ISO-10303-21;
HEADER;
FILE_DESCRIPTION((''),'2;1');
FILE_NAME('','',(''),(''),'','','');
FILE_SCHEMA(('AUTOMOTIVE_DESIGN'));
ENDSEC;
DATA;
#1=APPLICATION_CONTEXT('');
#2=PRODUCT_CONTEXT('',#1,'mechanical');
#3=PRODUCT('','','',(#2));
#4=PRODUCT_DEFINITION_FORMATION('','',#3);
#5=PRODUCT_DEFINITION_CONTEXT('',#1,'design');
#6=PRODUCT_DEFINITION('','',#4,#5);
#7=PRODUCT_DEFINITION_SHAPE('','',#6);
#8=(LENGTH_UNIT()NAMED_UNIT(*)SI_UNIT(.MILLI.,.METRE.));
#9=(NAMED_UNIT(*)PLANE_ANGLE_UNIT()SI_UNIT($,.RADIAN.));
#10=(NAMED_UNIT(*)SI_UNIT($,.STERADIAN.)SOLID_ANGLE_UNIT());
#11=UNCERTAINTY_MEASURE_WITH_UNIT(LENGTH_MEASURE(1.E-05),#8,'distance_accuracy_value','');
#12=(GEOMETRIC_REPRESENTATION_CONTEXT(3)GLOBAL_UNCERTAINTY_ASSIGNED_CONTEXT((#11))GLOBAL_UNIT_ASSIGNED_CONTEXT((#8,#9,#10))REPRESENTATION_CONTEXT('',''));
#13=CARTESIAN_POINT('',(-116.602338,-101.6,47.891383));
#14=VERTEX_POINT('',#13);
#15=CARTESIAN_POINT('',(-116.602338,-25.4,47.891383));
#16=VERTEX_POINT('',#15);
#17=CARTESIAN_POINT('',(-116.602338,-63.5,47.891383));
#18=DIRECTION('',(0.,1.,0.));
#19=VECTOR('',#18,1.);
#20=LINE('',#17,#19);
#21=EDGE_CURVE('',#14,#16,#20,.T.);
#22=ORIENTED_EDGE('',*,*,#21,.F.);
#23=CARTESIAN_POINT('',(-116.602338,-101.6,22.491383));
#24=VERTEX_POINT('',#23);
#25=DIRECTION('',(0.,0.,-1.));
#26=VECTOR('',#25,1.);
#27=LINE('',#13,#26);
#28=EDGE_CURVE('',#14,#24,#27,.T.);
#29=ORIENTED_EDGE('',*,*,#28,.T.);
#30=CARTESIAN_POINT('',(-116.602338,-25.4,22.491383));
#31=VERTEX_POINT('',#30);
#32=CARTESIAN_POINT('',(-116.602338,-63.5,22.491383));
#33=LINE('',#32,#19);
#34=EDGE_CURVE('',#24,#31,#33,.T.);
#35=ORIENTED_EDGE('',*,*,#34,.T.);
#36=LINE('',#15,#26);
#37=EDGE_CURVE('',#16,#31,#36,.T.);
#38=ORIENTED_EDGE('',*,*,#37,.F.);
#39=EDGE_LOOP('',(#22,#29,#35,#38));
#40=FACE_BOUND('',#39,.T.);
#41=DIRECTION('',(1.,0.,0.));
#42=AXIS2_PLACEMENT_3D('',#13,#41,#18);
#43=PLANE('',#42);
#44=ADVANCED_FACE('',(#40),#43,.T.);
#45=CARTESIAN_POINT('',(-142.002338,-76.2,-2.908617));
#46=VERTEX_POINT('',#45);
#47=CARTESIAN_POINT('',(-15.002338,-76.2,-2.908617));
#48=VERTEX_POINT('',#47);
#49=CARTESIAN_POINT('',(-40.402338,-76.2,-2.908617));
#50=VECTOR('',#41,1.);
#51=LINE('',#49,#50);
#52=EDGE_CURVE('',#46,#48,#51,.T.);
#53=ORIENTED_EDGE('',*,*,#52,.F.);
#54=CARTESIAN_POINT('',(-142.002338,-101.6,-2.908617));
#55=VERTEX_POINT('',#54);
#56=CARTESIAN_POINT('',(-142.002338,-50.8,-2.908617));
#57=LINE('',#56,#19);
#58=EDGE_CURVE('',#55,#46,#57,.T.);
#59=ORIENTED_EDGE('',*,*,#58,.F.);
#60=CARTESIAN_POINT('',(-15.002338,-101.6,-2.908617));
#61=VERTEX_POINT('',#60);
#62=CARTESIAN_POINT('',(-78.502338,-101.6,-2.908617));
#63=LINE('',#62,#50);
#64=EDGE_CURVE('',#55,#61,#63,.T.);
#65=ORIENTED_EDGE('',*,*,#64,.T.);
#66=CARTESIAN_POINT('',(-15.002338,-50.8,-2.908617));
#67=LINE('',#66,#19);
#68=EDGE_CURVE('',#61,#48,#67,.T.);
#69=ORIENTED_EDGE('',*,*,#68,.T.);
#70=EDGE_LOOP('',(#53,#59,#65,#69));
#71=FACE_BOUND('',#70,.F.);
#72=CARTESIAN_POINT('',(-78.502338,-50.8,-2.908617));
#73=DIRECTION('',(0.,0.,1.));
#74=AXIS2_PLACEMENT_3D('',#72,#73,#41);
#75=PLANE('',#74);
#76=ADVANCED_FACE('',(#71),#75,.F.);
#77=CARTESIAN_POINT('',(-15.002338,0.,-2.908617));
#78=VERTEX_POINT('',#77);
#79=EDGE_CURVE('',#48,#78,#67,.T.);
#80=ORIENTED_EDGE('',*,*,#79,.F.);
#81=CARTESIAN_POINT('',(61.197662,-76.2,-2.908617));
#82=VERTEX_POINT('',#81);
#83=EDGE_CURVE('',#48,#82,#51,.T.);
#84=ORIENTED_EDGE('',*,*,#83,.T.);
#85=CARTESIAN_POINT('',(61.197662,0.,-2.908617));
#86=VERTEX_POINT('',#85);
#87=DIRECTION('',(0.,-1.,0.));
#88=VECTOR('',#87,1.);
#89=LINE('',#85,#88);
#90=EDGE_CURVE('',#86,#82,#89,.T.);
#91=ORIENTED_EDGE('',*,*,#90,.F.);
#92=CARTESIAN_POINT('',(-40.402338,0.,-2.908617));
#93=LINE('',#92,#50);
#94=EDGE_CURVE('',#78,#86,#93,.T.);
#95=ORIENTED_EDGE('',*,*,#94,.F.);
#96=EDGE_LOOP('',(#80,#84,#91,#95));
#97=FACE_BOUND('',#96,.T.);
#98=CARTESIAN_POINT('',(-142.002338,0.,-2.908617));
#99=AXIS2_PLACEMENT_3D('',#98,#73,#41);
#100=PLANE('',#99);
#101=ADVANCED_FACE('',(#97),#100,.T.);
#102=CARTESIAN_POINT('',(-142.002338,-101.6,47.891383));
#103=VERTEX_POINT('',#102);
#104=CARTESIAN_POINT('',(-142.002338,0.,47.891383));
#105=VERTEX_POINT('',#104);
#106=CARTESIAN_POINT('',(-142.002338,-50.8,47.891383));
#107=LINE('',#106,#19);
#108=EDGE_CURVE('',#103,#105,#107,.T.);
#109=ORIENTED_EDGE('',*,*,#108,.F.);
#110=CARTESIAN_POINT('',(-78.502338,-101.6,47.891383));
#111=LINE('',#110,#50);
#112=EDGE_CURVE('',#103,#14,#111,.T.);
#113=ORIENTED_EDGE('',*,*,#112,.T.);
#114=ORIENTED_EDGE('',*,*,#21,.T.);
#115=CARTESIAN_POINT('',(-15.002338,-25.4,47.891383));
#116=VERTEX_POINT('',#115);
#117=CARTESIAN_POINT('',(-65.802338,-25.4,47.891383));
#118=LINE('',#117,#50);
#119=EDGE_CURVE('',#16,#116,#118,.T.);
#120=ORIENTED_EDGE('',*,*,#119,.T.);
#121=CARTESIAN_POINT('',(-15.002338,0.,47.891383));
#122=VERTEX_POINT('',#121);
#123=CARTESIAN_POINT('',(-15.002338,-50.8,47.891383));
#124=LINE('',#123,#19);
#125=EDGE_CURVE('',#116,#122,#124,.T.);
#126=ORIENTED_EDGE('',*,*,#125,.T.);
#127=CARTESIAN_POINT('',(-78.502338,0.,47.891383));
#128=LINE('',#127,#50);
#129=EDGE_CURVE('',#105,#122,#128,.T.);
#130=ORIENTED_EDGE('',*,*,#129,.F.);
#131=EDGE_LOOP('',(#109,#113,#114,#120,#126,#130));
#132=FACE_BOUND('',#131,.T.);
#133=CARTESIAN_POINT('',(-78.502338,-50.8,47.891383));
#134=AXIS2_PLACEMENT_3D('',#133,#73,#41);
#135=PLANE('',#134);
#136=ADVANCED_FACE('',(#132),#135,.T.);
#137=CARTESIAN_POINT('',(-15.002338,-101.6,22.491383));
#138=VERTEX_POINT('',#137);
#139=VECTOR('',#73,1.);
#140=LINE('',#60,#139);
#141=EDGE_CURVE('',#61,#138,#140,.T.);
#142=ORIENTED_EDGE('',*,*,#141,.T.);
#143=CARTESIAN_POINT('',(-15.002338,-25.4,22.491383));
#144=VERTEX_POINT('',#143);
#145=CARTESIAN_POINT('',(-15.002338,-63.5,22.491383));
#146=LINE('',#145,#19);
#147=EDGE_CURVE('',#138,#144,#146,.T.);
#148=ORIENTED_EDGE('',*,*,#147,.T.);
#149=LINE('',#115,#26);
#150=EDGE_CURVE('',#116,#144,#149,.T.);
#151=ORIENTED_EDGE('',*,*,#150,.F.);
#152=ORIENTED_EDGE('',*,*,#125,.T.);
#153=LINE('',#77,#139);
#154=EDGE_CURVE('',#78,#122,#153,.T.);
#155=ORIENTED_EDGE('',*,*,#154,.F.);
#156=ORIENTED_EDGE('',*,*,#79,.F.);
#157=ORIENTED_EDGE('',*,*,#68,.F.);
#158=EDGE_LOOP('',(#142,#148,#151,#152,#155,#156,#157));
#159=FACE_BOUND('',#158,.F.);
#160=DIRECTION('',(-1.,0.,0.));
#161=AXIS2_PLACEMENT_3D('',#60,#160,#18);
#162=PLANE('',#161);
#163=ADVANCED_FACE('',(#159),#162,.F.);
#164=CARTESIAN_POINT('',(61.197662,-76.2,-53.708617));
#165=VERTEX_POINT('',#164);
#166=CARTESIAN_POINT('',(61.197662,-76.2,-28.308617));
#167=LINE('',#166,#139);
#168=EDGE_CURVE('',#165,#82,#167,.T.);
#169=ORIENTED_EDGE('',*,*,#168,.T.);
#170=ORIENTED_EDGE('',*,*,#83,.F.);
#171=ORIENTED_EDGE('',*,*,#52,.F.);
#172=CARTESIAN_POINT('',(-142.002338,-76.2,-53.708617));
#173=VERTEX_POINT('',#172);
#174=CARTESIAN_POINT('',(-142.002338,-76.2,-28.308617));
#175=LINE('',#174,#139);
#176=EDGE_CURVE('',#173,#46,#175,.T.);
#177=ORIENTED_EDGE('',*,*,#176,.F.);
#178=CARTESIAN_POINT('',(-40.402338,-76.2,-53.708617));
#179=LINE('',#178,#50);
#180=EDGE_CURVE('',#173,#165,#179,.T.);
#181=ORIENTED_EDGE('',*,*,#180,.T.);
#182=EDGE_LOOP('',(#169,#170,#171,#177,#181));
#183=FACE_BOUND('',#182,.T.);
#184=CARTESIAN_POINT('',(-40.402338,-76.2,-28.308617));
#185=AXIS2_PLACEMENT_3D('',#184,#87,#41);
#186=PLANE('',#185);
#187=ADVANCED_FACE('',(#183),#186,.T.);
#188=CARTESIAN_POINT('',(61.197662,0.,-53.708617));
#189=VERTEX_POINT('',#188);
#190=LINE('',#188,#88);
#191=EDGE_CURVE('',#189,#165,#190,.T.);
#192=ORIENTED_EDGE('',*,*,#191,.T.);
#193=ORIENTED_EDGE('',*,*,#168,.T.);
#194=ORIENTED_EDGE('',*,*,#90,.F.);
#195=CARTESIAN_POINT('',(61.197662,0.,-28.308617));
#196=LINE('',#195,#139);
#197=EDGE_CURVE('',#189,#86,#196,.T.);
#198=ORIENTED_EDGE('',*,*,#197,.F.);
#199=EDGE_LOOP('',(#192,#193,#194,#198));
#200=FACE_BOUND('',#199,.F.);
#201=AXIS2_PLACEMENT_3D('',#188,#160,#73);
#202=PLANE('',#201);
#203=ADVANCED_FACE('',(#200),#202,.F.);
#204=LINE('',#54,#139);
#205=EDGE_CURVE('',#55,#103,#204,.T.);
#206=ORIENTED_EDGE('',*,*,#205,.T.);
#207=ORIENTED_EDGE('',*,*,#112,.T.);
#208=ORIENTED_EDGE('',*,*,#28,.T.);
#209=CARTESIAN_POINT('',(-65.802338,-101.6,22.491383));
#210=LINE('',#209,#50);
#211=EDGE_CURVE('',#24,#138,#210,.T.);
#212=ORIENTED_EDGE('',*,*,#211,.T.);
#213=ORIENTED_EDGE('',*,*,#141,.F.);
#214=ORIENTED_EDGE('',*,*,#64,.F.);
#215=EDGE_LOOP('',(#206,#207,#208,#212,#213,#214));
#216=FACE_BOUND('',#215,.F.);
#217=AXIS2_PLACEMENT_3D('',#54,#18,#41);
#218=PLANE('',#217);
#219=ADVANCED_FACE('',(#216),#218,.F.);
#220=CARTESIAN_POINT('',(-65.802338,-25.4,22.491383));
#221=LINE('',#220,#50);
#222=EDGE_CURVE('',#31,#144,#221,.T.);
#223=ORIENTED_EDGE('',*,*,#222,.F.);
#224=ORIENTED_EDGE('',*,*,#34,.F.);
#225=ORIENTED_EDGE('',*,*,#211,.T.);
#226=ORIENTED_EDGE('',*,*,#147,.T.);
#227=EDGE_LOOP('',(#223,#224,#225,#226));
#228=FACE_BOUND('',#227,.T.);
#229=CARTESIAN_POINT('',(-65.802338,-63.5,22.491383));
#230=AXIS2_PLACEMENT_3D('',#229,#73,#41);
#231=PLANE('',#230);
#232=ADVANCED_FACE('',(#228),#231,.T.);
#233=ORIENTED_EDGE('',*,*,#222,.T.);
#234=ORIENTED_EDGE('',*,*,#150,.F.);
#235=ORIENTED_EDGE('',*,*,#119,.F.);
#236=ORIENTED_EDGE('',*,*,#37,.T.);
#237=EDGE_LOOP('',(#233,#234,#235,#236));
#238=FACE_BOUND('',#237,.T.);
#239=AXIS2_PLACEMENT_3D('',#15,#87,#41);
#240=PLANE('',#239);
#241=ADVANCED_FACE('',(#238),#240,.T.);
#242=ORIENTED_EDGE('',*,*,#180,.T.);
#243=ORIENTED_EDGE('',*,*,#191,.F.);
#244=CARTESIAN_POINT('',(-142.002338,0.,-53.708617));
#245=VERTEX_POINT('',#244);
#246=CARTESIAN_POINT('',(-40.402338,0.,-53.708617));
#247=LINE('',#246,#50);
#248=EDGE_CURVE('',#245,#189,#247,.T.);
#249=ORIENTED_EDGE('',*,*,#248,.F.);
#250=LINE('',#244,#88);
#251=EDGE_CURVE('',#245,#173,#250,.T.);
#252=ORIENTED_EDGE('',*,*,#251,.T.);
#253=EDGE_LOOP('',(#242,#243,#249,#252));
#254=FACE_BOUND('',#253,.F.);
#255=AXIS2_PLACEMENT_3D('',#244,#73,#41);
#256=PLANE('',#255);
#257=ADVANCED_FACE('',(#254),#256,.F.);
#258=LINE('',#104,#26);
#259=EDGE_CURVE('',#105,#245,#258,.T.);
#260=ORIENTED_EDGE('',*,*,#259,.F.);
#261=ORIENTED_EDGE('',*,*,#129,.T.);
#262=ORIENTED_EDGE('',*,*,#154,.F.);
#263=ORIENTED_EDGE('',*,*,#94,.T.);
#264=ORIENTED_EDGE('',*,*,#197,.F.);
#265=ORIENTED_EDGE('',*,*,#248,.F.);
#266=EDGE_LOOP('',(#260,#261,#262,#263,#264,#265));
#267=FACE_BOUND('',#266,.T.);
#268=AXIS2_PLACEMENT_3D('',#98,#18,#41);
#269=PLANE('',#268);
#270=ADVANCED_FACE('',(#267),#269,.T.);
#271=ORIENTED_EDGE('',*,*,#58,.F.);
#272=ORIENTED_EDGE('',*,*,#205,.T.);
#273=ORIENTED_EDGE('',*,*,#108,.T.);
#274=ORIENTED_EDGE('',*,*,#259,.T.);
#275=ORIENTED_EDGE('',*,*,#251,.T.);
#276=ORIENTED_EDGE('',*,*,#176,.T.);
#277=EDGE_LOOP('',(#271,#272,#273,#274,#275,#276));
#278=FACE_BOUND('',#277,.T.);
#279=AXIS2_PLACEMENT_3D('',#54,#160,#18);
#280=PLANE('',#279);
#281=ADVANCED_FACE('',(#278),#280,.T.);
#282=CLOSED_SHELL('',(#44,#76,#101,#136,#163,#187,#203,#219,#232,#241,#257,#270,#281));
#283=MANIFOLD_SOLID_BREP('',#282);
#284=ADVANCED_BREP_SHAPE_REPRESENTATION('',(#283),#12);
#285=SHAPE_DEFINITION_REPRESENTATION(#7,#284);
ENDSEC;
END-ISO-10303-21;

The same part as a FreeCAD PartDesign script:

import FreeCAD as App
import Part
import Sketcher
Q = App.Units.Quantity

doc = App.newDocument("Part")
body = doc.addObject("PartDesign::Body", "Body")

sketch1 = body.newObject("Sketcher::SketchObject", "Sketch")
sketch1.AttachmentSupport = (doc.getObject("XZ_Plane"), [""])
sketch1.MapMode = "FlatFace"
sketch1.addGeometry([
    Part.LineSegment(App.Vector(-142.002338, -2.908617, 0), App.Vector(-142.002338, -53.708617, 0)),
    Part.LineSegment(App.Vector(-142.002338, -53.708617, 0), App.Vector(61.197662, -53.708617, 0)),
    Part.LineSegment(App.Vector(61.197662, -53.708617, 0), App.Vector(61.197662, -2.908617, 0)),
    Part.LineSegment(App.Vector(61.197662, -2.908617, 0), App.Vector(-142.002338, -2.908617, 0)),
], False)
sketch1.addConstraint([
    Sketcher.Constraint("Coincident", 0, 2, 1, 1),
    Sketcher.Constraint("Coincident", 1, 2, 2, 1),
    Sketcher.Constraint("Coincident", 2, 2, 3, 1),
    Sketcher.Constraint("Coincident", 3, 2, 0, 1),
    Sketcher.Constraint("Vertical", 0),
    Sketcher.Constraint("Horizontal", 1),
    Sketcher.Constraint("Vertical", 2),
    Sketcher.Constraint("Horizontal", 3),
    Sketcher.Constraint("DistanceX", 1, 1, 1, 2, Q("8 in")),
    Sketcher.Constraint("DistanceY", 0, 2, 0, 1, Q("2 in")),
    Sketcher.Constraint("DistanceX", 0, 2, -1, 1, Q("142.002338 mm")),
    Sketcher.Constraint("DistanceY", 0, 2, -1, 1, Q("53.708617 mm")),
])
pad1 = body.newObject("PartDesign::Pad", "Pad")
pad1.Profile = sketch1
pad1.Length = Q("3 in")

sketch2 = body.newObject("Sketcher::SketchObject", "Sketch001")
sketch2.AttachmentSupport = (doc.getObject("XY_Plane"), [""])
sketch2.MapMode = "FlatFace"
sketch2.AttachmentOffset = App.Placement(App.Vector(0, 0, -2.908617), App.Rotation())
sketch2.addGeometry([
    Part.LineSegment(App.Vector(-142.002338, 0, 0), App.Vector(-142.002338, -101.6, 0)),
    Part.LineSegment(App.Vector(-142.002338, -101.6, 0), App.Vector(-15.002338, -101.6, 0)),
    Part.LineSegment(App.Vector(-15.002338, -101.6, 0), App.Vector(-15.002338, 0, 0)),
    Part.LineSegment(App.Vector(-15.002338, 0, 0), App.Vector(-142.002338, 0, 0)),
], False)
sketch2.addConstraint([
    Sketcher.Constraint("Coincident", 0, 2, 1, 1),
    Sketcher.Constraint("Coincident", 1, 2, 2, 1),
    Sketcher.Constraint("Coincident", 2, 2, 3, 1),
    Sketcher.Constraint("Coincident", 3, 2, 0, 1),
    Sketcher.Constraint("Vertical", 0),
    Sketcher.Constraint("Horizontal", 1),
    Sketcher.Constraint("Vertical", 2),
    Sketcher.Constraint("Horizontal", 3),
    Sketcher.Constraint("PointOnObject", 2, 2, -1),
    Sketcher.Constraint("DistanceX", 1, 1, 1, 2, Q("5 in")),
    Sketcher.Constraint("DistanceY", 0, 2, 0, 1, Q("4 in")),
    Sketcher.Constraint("DistanceX", 0, 2, -1, 1, Q("142.002338 mm")),
])
pad2 = body.newObject("PartDesign::Pad", "Pad001")
pad2.Profile = sketch2
pad2.Length = Q("2 in")

sketch3 = body.newObject("Sketcher::SketchObject", "Sketch002")
sketch3.AttachmentSupport = (doc.getObject("XY_Plane"), [""])
sketch3.MapMode = "FlatFace"
sketch3.AttachmentOffset = App.Placement(App.Vector(0, 0, 47.891383), App.Rotation())
sketch3.addGeometry([
    Part.LineSegment(App.Vector(-116.602338, -25.4, 0), App.Vector(-116.602338, -101.6, 0)),
    Part.LineSegment(App.Vector(-116.602338, -101.6, 0), App.Vector(-15.002338, -101.6, 0)),
    Part.LineSegment(App.Vector(-15.002338, -101.6, 0), App.Vector(-15.002338, -25.4, 0)),
    Part.LineSegment(App.Vector(-15.002338, -25.4, 0), App.Vector(-116.602338, -25.4, 0)),
], False)
sketch3.addConstraint([
    Sketcher.Constraint("Coincident", 0, 2, 1, 1),
    Sketcher.Constraint("Coincident", 1, 2, 2, 1),
    Sketcher.Constraint("Coincident", 2, 2, 3, 1),
    Sketcher.Constraint("Coincident", 3, 2, 0, 1),
    Sketcher.Constraint("Vertical", 0),
    Sketcher.Constraint("Horizontal", 1),
    Sketcher.Constraint("Vertical", 2),
    Sketcher.Constraint("Horizontal", 3),
    Sketcher.Constraint("DistanceX", 1, 1, 1, 2, Q("4 in")),
    Sketcher.Constraint("DistanceY", 0, 2, 0, 1, Q("3 in")),
    Sketcher.Constraint("DistanceY", 0, 2, -1, 1, Q("4 in")),
    Sketcher.Constraint("DistanceX", 0, 2, -1, 1, Q("116.602338 mm")),
])
pocket1 = body.newObject("PartDesign::Pocket", "Pocket")
pocket1.Profile = sketch3
pocket1.Length = Q("1 in")

doc.recompute()
